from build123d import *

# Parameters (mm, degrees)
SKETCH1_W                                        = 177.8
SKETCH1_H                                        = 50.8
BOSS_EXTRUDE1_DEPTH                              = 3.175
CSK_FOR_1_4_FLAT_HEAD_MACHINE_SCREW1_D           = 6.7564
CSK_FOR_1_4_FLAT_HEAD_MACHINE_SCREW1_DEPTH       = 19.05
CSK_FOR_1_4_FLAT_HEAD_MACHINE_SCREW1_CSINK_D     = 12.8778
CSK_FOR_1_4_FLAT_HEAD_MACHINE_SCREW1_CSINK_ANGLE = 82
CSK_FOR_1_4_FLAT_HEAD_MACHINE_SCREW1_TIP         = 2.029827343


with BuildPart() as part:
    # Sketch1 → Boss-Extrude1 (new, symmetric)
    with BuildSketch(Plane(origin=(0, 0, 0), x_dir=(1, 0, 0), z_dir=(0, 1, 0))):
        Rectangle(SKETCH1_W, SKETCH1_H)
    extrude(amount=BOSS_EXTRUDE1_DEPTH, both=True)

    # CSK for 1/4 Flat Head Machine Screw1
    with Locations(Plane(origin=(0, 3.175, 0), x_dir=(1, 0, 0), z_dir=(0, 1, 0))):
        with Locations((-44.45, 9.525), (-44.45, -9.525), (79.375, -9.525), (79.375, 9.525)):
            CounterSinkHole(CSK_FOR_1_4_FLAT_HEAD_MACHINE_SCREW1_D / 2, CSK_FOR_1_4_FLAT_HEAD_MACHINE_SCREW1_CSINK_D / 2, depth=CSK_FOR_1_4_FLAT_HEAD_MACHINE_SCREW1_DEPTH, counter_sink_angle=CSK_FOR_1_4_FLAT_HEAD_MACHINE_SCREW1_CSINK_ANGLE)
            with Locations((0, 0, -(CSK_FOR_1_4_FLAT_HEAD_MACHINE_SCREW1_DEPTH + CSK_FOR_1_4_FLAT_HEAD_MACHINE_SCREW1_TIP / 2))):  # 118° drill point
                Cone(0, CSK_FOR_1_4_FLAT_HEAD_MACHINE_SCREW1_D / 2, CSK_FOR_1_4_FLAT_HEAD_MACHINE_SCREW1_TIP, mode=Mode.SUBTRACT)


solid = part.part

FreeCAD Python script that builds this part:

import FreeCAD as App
import Part
import Sketcher

V = App.Vector
Q = App.Units.Quantity


def add_polygon(sketch, points):
    """Adds a closed chain of lines whose ends are joined by coincident constraints."""
    first, n = sketch.GeometryCount, len(points)
    for a, b in zip(points, points[1:] + points[:1]):
        sketch.addGeometry(Part.LineSegment(App.Vector(*a, 0), App.Vector(*b, 0)), False)
    for i in range(n):
        sketch.addConstraint(Sketcher.Constraint("Coincident", first + i, 2, first + (i + 1) % n, 1))

doc = App.newDocument("Part")
body = doc.addObject("PartDesign::Body", "Body")

sketch1 = body.newObject("Sketcher::SketchObject", "Sketch")
sketch1.AttachmentSupport = (doc.getObject("XZ_Plane"), [""])
sketch1.MapMode = "FlatFace"
add_polygon(sketch1, [(-89, -25), (-89, 25), (89, 25), (89, -25)])
sketch1.addConstraint([
    Sketcher.Constraint("Vertical", 0),
    Sketcher.Constraint("Horizontal", 1),
    Sketcher.Constraint("Vertical", 2),
    Sketcher.Constraint("Horizontal", 3),
    Sketcher.Constraint("Symmetric", 0, 2, 2, 2, -1, 1),
    Sketcher.Constraint("DistanceX", 1, 1, 1, 2, Q("7 in")),
    Sketcher.Constraint("DistanceY", 0, 1, 0, 2, Q("2 in")),
])
pad1 = body.newObject("PartDesign::Pad", "Pad")
pad1.Profile = sketch1
pad1.Length = Q("0.25 in")
pad1.Midplane = True

sketch2 = body.newObject("Sketcher::SketchObject", "Sketch001")
sketch2.AttachmentSupport = (doc.getObject("XZ_Plane"), [""])
sketch2.MapMode = "FlatFace"
sketch2.AttachmentOffset = App.Placement(V(0, 0, -0.125 * 25.4), App.Rotation())
sketch2.addGeometry([
    Part.Circle(V(-44.5, -9.5, 0), V(0, 0, 1), 3.4),
    Part.Circle(V(-44.5, 9.5, 0), V(0, 0, 1), 3.4),
    Part.Circle(V(79.4, 9.5, 0), V(0, 0, 1), 3.4),
    Part.Circle(V(79.4, -9.5, 0), V(0, 0, 1), 3.4),
], False)
sketch2.addConstraint([
    Sketcher.Constraint("Equal", 0, 1),
    Sketcher.Constraint("Equal", 1, 2),
    Sketcher.Constraint("Equal", 2, 3),
    Sketcher.Constraint("Symmetric", 0, 3, 1, 3, -1),
    Sketcher.Constraint("Symmetric", 2, 3, 3, 3, -1),
    Sketcher.Constraint("Horizontal", 1, 3, 2, 3),
    Sketcher.Constraint("Diameter", 0, Q("0.266 in")),
    Sketcher.Constraint("DistanceX", 0, 3, -1, 1, Q("1.75 in")),
    Sketcher.Constraint("DistanceY", 0, 3, 1, 3, Q("0.75 in")),
    Sketcher.Constraint("DistanceX", -1, 1, 2, 3, Q("3.125 in")),
])
doc.recompute()
hole = body.newObject("PartDesign::Hole", "Hole")
hole.Profile = sketch2
hole.ThreadType = "None"
hole.Diameter = Q("0.266 in")
hole.DepthType = "Dimension"
hole.Depth = Q("0.75 in")
hole.DrillPoint = "Angled"
hole.DrillPointAngle = 118
hole.HoleCutType = "Countersink"
hole.HoleCutDiameter = Q("0.507 in")
hole.HoleCutCountersinkAngle = 82
hole.Reversed = True

doc.recompute()
